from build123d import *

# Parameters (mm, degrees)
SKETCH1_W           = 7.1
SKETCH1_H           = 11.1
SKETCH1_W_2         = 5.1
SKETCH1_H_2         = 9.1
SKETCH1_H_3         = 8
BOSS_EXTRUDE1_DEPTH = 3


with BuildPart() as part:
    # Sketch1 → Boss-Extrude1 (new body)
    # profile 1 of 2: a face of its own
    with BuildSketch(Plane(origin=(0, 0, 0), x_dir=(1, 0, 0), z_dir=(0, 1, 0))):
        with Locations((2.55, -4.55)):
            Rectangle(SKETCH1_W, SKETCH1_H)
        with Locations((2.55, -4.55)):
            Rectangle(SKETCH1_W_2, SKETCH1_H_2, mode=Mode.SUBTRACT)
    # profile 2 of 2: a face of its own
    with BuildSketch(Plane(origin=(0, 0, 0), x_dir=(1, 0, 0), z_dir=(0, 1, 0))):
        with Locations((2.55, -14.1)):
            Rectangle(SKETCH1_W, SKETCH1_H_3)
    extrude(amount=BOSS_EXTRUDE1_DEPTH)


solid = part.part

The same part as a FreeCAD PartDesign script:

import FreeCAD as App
import Part
import Sketcher

V = App.Vector
Q = App.Units.Quantity


def add_polygon(sketch, points):
    """Adds a closed chain of lines whose ends are joined by coincident constraints."""
    first, n = sketch.GeometryCount, len(points)
    for a, b in zip(points, points[1:] + points[:1]):
        sketch.addGeometry(Part.LineSegment(App.Vector(*a, 0), App.Vector(*b, 0)), False)
    for i in range(n):
        sketch.addConstraint(Sketcher.Constraint("Coincident", first + i, 2, first + (i + 1) % n, 1))

doc = App.newDocument("Part")
body = doc.addObject("PartDesign::Body", "Body")

# Sketch on XZ plane
sketch1 = doc.addObject("Sketcher::SketchObject", "Sketch")
body.addObject(sketch1)
sketch1.AttachmentSupport = (doc.XZ_Plane, [""])
sketch1.MapMode = "FlatFace"
add_polygon(sketch1, [(-1, -1), (-1, 18.1), (6.1, 18.1), (6.1, -1)])  # lines 0-3
add_polygon(sketch1, [(5.1, 9.1), (0, 9.1), (0, 0), (5.1, 0)])  # lines 4-7
sketch1.addConstraint(Sketcher.Constraint("Vertical", 0))
sketch1.addConstraint(Sketcher.Constraint("Horizontal", 1))
sketch1.addConstraint(Sketcher.Constraint("Vertical", 2))
sketch1.addConstraint(Sketcher.Constraint("Horizontal", 3))
sketch1.addConstraint(Sketcher.Constraint("Horizontal", 4))
sketch1.addConstraint(Sketcher.Constraint("Vertical", 5))
sketch1.addConstraint(Sketcher.Constraint("Horizontal", 6))
sketch1.addConstraint(Sketcher.Constraint("Vertical", 7))
sketch1.addConstraint(Sketcher.Constraint("Coincident", 5, 2, -1, 1))
sketch1.addConstraint(Sketcher.Constraint("DistanceX", 1, 1, 1, 2, Q("7.1 mm")))
sketch1.addConstraint(Sketcher.Constraint("DistanceX", 4, 2, 4, 1, Q("5.1 mm")))
sketch1.addConstraint(Sketcher.Constraint("DistanceY", 0, 1, 0, 2, Q("19.1 mm")))
sketch1.addConstraint(Sketcher.Constraint("DistanceY", 5, 2, 5, 1, Q("9.1 mm")))
sketch1.addConstraint(Sketcher.Constraint("DistanceX", 0, 2, -1, 1, Q("1 mm")))
sketch1.addConstraint(Sketcher.Constraint("DistanceY", 2, 2, -1, 1, Q("1 mm")))
pad1 = doc.addObject("PartDesign::Pad", "Pad")
body.addObject(pad1)
pad1.Profile = sketch1
pad1.Length = 3
pad1.Reversed = True

doc.recompute()
